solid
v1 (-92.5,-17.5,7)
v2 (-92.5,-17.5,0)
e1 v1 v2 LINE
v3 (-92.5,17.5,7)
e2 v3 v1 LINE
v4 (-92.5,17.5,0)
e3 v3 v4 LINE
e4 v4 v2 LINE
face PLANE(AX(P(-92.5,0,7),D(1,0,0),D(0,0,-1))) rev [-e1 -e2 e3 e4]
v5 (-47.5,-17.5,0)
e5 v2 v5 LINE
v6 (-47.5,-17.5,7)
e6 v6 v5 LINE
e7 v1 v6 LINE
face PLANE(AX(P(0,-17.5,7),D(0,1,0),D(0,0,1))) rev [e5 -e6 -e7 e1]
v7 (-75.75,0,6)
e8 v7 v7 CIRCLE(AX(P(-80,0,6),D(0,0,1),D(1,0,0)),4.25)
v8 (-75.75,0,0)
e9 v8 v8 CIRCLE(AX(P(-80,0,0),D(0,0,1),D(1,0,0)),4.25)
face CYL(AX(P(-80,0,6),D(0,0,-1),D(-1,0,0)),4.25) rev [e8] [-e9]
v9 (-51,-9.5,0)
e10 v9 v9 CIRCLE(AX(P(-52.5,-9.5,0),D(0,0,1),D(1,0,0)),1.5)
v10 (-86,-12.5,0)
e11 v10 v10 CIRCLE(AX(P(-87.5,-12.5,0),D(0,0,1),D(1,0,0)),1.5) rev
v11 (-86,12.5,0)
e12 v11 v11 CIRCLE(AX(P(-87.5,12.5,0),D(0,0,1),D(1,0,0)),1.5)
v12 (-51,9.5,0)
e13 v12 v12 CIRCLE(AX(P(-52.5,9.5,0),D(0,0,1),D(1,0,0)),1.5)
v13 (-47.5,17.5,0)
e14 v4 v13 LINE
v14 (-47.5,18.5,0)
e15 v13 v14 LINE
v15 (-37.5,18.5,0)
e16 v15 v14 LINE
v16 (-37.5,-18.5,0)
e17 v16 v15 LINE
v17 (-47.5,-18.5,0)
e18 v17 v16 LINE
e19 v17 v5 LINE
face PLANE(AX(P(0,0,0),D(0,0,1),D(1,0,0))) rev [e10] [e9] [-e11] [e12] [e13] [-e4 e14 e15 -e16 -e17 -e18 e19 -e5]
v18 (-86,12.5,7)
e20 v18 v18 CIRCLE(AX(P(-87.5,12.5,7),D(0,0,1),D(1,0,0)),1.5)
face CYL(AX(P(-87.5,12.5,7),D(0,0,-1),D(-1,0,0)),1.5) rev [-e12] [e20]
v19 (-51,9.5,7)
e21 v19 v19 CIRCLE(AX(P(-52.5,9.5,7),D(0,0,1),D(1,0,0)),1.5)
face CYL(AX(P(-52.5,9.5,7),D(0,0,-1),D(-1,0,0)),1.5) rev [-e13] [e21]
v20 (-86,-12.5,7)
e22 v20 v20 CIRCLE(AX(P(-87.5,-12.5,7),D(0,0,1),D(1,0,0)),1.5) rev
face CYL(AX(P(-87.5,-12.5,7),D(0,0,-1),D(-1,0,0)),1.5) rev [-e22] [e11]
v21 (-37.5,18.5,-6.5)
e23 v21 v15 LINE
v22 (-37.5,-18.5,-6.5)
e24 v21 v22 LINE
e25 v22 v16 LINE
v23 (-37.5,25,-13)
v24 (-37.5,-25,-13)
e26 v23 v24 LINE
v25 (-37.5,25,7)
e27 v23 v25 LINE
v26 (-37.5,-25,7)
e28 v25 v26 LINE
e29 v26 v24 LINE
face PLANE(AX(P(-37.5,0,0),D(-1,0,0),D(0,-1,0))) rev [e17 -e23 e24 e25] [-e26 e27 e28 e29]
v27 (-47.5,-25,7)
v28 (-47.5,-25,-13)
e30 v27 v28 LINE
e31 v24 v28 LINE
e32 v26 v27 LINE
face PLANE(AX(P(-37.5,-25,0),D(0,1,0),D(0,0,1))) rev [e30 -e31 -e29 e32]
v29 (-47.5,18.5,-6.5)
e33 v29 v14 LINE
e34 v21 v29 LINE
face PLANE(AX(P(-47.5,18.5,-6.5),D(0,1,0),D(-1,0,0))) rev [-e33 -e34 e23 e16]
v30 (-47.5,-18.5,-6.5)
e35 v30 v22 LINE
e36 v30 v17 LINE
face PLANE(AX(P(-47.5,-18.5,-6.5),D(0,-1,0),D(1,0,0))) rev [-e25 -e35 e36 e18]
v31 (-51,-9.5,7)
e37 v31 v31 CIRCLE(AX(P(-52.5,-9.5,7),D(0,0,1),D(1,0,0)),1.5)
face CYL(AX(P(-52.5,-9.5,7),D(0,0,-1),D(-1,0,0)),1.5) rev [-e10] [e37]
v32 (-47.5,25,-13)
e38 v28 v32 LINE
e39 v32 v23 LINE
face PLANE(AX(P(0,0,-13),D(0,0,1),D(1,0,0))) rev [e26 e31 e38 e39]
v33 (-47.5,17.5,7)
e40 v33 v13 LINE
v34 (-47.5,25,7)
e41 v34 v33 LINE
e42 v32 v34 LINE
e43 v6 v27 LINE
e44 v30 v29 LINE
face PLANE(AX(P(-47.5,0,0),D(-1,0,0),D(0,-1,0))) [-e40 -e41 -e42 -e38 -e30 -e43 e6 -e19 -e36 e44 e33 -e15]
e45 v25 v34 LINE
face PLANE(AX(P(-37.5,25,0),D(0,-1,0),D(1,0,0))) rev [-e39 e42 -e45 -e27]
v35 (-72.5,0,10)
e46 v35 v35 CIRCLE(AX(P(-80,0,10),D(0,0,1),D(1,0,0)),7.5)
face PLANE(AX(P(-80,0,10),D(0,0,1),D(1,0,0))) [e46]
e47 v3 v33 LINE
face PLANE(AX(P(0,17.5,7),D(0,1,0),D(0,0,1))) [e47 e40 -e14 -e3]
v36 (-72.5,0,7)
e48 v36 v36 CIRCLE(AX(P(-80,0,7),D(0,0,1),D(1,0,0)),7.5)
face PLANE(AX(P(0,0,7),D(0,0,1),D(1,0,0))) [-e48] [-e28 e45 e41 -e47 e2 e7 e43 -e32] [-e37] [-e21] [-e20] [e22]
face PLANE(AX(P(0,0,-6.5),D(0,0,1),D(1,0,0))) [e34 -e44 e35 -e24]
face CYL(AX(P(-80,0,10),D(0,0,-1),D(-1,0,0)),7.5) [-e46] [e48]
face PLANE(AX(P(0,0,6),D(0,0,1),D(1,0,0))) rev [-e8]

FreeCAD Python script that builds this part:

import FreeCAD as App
import Part
import Sketcher
from FreeCAD import Vector

doc = App.newDocument("Part")
body = doc.addObject("PartDesign::Body", "Body")

sketch1 = body.newObject("Sketcher::SketchObject", "Sketch")
sketch1.AttachmentSupport = (doc.getObject("XY_Plane"), [""])
sketch1.MapMode = "FlatFace"
sketch1.addGeometry(Part.LineSegment(Vector(-92.5, 17.5, 0), Vector(-92.5, -17.5, 0)), False)
sketch1.addGeometry(Part.LineSegment(Vector(-92.5, -17.5, 0), Vector(-47.5, -17.5, 0)), False)
sketch1.addGeometry(Part.LineSegment(Vector(-47.5, -17.5, 0), Vector(-47.5, 17.5, 0)), False)
sketch1.addGeometry(Part.LineSegment(Vector(-47.5, 17.5, 0), Vector(-92.5, 17.5, 0)), False)
sketch1.addGeometry(Part.Circle(Vector(-87.5, -12.5, 0), Vector(0, 0, 1), 1.5), False)
sketch1.addGeometry(Part.Circle(Vector(-52.5, -9.5, 0), Vector(0, 0, 1), 1.5), False)
sketch1.addGeometry(Part.Circle(Vector(-87.5, 12.5, 0), Vector(0, 0, 1), 1.5), False)
sketch1.addGeometry(Part.Circle(Vector(-52.5, 9.5, 0), Vector(0, 0, 1), 1.5), False)
sketch1.addConstraint(Sketcher.Constraint("Coincident", 0, 2, 1, 1))
sketch1.addConstraint(Sketcher.Constraint("Coincident", 1, 2, 2, 1))
sketch1.addConstraint(Sketcher.Constraint("Coincident", 2, 2, 3, 1))
sketch1.addConstraint(Sketcher.Constraint("Coincident", 3, 2, 0, 1))
sketch1.addConstraint(Sketcher.Constraint("Vertical", 0))
sketch1.addConstraint(Sketcher.Constraint("Horizontal", 1))
sketch1.addConstraint(Sketcher.Constraint("Vertical", 2))
sketch1.addConstraint(Sketcher.Constraint("Horizontal", 3))
sketch1.addConstraint(Sketcher.Constraint("Equal", 4, 5))
sketch1.addConstraint(Sketcher.Constraint("Equal", 5, 6))
sketch1.addConstraint(Sketcher.Constraint("Equal", 6, 7))
sketch1.addConstraint(Sketcher.Constraint("Symmetric", 4, 3, 6, 3, -1))
sketch1.addConstraint(Sketcher.Constraint("Symmetric", 5, 3, 7, 3, -1))
sketch1.addConstraint(Sketcher.Constraint("Diameter", 4, 3.0))
sketch1.addConstraint(Sketcher.Constraint("DistanceX", 1, 1, 1, 2, 45.0))
sketch1.addConstraint(Sketcher.Constraint("DistanceY", 0, 2, 0, 1, 35.0))
sketch1.addConstraint(Sketcher.Constraint("DistanceX", 4, 3, 5, 3, 35.0))
sketch1.addConstraint(Sketcher.Constraint("DistanceY", 4, 3, 5, 3, 3.0))
sketch1.addConstraint(Sketcher.Constraint("DistanceY", 4, 3, 6, 3, 25.0))
sketch1.addConstraint(Sketcher.Constraint("DistanceX", 0, 2, 4, 3, 5.0))
sketch1.addConstraint(Sketcher.Constraint("DistanceY", 0, 2, 4, 3, 5.0))
sketch1.addConstraint(Sketcher.Constraint("DistanceX", 4, 3, -1, 1, 87.5))
pad1 = body.newObject("PartDesign::Pad", "Pad")
pad1.Profile = sketch1
pad1.Length = 7

sketch2 = body.newObject("Sketcher::SketchObject", "Sketch001")
sketch2.AttachmentSupport = (doc.getObject("YZ_Plane"), [""])
sketch2.MapMode = "FlatFace"
sketch2.AttachmentOffset = App.Placement(Vector(0, 0, -47.5), App.Rotation())
sketch2.addGeometry(Part.LineSegment(Vector(25, 7, 0), Vector(-25, 7, 0)), False)
sketch2.addGeometry(Part.LineSegment(Vector(-25, 7, 0), Vector(-25, 0, 0)), False)
sketch2.addGeometry(Part.LineSegment(Vector(-25, 0, 0), Vector(25, 0, 0)), False)
sketch2.addGeometry(Part.LineSegment(Vector(25, 0, 0), Vector(25, 7, 0)), False)
sketch2.addConstraint(Sketcher.Constraint("Coincident", 0, 2, 1, 1))
sketch2.addConstraint(Sketcher.Constraint("Coincident", 1, 2, 2, 1))
sketch2.addConstraint(Sketcher.Constraint("Coincident", 2, 2, 3, 1))
sketch2.addConstraint(Sketcher.Constraint("Coincident", 3, 2, 0, 1))
sketch2.addConstraint(Sketcher.Constraint("Horizontal", 0))
sketch2.addConstraint(Sketcher.Constraint("Vertical", 1))
sketch2.addConstraint(Sketcher.Constraint("Horizontal", 2))
sketch2.addConstraint(Sketcher.Constraint("Vertical", 3))
sketch2.addConstraint(Sketcher.Constraint("Symmetric", 1, 2, 2, 2, -1, 1))
sketch2.addConstraint(Sketcher.Constraint("DistanceX", 0, 2, 0, 1, 50.0))
sketch2.addConstraint(Sketcher.Constraint("DistanceY", 1, 2, 1, 1, 7.0))
pad2 = body.newObject("PartDesign::Pad", "Pad001")
pad2.Profile = sketch2
pad2.Length = 10

sketch3 = body.newObject("Sketcher::SketchObject", "Sketch002")
sketch3.AttachmentSupport = (doc.getObject("XY_Plane"), [""])
sketch3.MapMode = "FlatFace"
sketch3.addGeometry(Part.LineSegment(Vector(-37.5, 25, 0), Vector(-37.5, 18.5, 0)), False)
sketch3.addGeometry(Part.LineSegment(Vector(-37.5, 18.5, 0), Vector(-47.5, 18.5, 0)), False)
sketch3.addGeometry(Part.LineSegment(Vector(-47.5, 18.5, 0), Vector(-47.5, 25, 0)), False)
sketch3.addGeometry(Part.LineSegment(Vector(-47.5, 25, 0), Vector(-37.5, 25, 0)), False)
sketch3.addGeometry(Part.LineSegment(Vector(-37.5, -18.5, 0), Vector(-37.5, -25, 0)), False)
sketch3.addGeometry(Part.LineSegment(Vector(-37.5, -25, 0), Vector(-47.5, -25, 0)), False)
sketch3.addGeometry(Part.LineSegment(Vector(-47.5, -25, 0), Vector(-47.5, -18.5, 0)), False)
sketch3.addGeometry(Part.LineSegment(Vector(-47.5, -18.5, 0), Vector(-37.5, -18.5, 0)), False)
sketch3.addConstraint(Sketcher.Constraint("Coincident", 0, 2, 1, 1))
sketch3.addConstraint(Sketcher.Constraint("Coincident", 1, 2, 2, 1))
sketch3.addConstraint(Sketcher.Constraint("Coincident", 2, 2, 3, 1))
sketch3.addConstraint(Sketcher.Constraint("Coincident", 3, 2, 0, 1))
sketch3.addConstraint(Sketcher.Constraint("Coincident", 4, 2, 5, 1))
sketch3.addConstraint(Sketcher.Constraint("Coincident", 5, 2, 6, 1))
sketch3.addConstraint(Sketcher.Constraint("Coincident", 6, 2, 7, 1))
sketch3.addConstraint(Sketcher.Constraint("Coincident", 7, 2, 4, 1))
sketch3.addConstraint(Sketcher.Constraint("Vertical", 0))
sketch3.addConstraint(Sketcher.Constraint("Horizontal", 1))
sketch3.addConstraint(Sketcher.Constraint("Vertical", 2))
sketch3.addConstraint(Sketcher.Constraint("Horizontal", 3))
sketch3.addConstraint(Sketcher.Constraint("Vertical", 4))
sketch3.addConstraint(Sketcher.Constraint("Horizontal", 5))
sketch3.addConstraint(Sketcher.Constraint("Vertical", 6))
sketch3.addConstraint(Sketcher.Constraint("Horizontal", 7))
sketch3.addConstraint(Sketcher.Constraint("Symmetric", 3, 2, 4, 2, -1))
sketch3.addConstraint(Sketcher.Constraint("Symmetric", 1, 2, 6, 2, -1))
sketch3.addConstraint(Sketcher.Constraint("DistanceX", 1, 2, 1, 1, 10.0))
sketch3.addConstraint(Sketcher.Constraint("DistanceY", 0, 2, 0, 1, 6.5))
sketch3.addConstraint(Sketcher.Constraint("DistanceY", -1, 1, 2, 2, 25.0))
sketch3.addConstraint(Sketcher.Constraint("DistanceX", 0, 2, -1, 1, 37.5))
pad3 = body.newObject("PartDesign::Pad", "Pad002")
pad3.Profile = sketch3
pad3.Length = 6.5
pad3.Reversed = True

sketch4 = body.newObject("Sketcher::SketchObject", "Sketch003")
sketch4.AttachmentSupport = (doc.getObject("XY_Plane"), [""])
sketch4.MapMode = "FlatFace"
sketch4.AttachmentOffset = App.Placement(Vector(0, 0, -6.5), App.Rotation())
sketch4.addGeometry(Part.LineSegment(Vector(-37.5, 25, 0), Vector(-37.5, -25, 0)), False)
sketch4.addGeometry(Part.LineSegment(Vector(-37.5, -25, 0), Vector(-47.5, -25, 0)), False)
sketch4.addGeometry(Part.LineSegment(Vector(-47.5, -25, 0), Vector(-47.5, 25, 0)), False)
sketch4.addGeometry(Part.LineSegment(Vector(-47.5, 25, 0), Vector(-37.5, 25, 0)), False)
sketch4.addConstraint(Sketcher.Constraint("Coincident", 0, 2, 1, 1))
sketch4.addConstraint(Sketcher.Constraint("Coincident", 1, 2, 2, 1))
sketch4.addConstraint(Sketcher.Constraint("Coincident", 2, 2, 3, 1))
sketch4.addConstraint(Sketcher.Constraint("Coincident", 3, 2, 0, 1))
sketch4.addConstraint(Sketcher.Constraint("Vertical", 0))
sketch4.addConstraint(Sketcher.Constraint("Horizontal", 1))
sketch4.addConstraint(Sketcher.Constraint("Vertical", 2))
sketch4.addConstraint(Sketcher.Constraint("Horizontal", 3))
sketch4.addConstraint(Sketcher.Constraint("DistanceX", 1, 2, 1, 1, 10.0))
sketch4.addConstraint(Sketcher.Constraint("DistanceY", 0, 2, 0, 1, 50.0))
sketch4.addConstraint(Sketcher.Constraint("DistanceY", 0, 2, -1, 1, 25.0))
sketch4.addConstraint(Sketcher.Constraint("DistanceX", 0, 2, -1, 1, 37.5))
pad4 = body.newObject("PartDesign::Pad", "Pad003")
pad4.Profile = sketch4
pad4.Length = 6.5
pad4.Reversed = True

sketch5 = body.newObject("Sketcher::SketchObject", "Sketch004")
sketch5.AttachmentSupport = (doc.getObject("XY_Plane"), [""])
sketch5.MapMode = "FlatFace"
sketch5.AttachmentOffset = App.Placement(Vector(0, 0, 7), App.Rotation())
sketch5.addGeometry(Part.Circle(Vector(-80, 0, 0), Vector(0, 0, 1), 7.5), False)
sketch5.addConstraint(Sketcher.Constraint("PointOnObject", 0, 3, -1))
sketch5.addConstraint(Sketcher.Constraint("Diameter", 0, 15.0))
sketch5.addConstraint(Sketcher.Constraint("DistanceX", 0, 3, -1, 1, 80.0))
pad5 = body.newObject("PartDesign::Pad", "Pad004")
pad5.Profile = sketch5
pad5.Length = 3

sketch6 = body.newObject("Sketcher::SketchObject", "Sketch005")
sketch6.AttachmentSupport = (doc.getObject("XY_Plane"), [""])
sketch6.MapMode = "FlatFace"
sketch6.addGeometry(Part.Circle(Vector(-80, 0, 0), Vector(0, 0, 1), 4.25), False)
sketch6.addConstraint(Sketcher.Constraint("PointOnObject", 0, 3, -1))
sketch6.addConstraint(Sketcher.Constraint("Diameter", 0, 8.5))
sketch6.addConstraint(Sketcher.Constraint("DistanceX", 0, 3, -1, 1, 80.0))
pocket1 = body.newObject("PartDesign::Pocket", "Pocket")
pocket1.Profile = sketch6
pocket1.Length = 6
pocket1.Reversed = True

doc.recompute()
